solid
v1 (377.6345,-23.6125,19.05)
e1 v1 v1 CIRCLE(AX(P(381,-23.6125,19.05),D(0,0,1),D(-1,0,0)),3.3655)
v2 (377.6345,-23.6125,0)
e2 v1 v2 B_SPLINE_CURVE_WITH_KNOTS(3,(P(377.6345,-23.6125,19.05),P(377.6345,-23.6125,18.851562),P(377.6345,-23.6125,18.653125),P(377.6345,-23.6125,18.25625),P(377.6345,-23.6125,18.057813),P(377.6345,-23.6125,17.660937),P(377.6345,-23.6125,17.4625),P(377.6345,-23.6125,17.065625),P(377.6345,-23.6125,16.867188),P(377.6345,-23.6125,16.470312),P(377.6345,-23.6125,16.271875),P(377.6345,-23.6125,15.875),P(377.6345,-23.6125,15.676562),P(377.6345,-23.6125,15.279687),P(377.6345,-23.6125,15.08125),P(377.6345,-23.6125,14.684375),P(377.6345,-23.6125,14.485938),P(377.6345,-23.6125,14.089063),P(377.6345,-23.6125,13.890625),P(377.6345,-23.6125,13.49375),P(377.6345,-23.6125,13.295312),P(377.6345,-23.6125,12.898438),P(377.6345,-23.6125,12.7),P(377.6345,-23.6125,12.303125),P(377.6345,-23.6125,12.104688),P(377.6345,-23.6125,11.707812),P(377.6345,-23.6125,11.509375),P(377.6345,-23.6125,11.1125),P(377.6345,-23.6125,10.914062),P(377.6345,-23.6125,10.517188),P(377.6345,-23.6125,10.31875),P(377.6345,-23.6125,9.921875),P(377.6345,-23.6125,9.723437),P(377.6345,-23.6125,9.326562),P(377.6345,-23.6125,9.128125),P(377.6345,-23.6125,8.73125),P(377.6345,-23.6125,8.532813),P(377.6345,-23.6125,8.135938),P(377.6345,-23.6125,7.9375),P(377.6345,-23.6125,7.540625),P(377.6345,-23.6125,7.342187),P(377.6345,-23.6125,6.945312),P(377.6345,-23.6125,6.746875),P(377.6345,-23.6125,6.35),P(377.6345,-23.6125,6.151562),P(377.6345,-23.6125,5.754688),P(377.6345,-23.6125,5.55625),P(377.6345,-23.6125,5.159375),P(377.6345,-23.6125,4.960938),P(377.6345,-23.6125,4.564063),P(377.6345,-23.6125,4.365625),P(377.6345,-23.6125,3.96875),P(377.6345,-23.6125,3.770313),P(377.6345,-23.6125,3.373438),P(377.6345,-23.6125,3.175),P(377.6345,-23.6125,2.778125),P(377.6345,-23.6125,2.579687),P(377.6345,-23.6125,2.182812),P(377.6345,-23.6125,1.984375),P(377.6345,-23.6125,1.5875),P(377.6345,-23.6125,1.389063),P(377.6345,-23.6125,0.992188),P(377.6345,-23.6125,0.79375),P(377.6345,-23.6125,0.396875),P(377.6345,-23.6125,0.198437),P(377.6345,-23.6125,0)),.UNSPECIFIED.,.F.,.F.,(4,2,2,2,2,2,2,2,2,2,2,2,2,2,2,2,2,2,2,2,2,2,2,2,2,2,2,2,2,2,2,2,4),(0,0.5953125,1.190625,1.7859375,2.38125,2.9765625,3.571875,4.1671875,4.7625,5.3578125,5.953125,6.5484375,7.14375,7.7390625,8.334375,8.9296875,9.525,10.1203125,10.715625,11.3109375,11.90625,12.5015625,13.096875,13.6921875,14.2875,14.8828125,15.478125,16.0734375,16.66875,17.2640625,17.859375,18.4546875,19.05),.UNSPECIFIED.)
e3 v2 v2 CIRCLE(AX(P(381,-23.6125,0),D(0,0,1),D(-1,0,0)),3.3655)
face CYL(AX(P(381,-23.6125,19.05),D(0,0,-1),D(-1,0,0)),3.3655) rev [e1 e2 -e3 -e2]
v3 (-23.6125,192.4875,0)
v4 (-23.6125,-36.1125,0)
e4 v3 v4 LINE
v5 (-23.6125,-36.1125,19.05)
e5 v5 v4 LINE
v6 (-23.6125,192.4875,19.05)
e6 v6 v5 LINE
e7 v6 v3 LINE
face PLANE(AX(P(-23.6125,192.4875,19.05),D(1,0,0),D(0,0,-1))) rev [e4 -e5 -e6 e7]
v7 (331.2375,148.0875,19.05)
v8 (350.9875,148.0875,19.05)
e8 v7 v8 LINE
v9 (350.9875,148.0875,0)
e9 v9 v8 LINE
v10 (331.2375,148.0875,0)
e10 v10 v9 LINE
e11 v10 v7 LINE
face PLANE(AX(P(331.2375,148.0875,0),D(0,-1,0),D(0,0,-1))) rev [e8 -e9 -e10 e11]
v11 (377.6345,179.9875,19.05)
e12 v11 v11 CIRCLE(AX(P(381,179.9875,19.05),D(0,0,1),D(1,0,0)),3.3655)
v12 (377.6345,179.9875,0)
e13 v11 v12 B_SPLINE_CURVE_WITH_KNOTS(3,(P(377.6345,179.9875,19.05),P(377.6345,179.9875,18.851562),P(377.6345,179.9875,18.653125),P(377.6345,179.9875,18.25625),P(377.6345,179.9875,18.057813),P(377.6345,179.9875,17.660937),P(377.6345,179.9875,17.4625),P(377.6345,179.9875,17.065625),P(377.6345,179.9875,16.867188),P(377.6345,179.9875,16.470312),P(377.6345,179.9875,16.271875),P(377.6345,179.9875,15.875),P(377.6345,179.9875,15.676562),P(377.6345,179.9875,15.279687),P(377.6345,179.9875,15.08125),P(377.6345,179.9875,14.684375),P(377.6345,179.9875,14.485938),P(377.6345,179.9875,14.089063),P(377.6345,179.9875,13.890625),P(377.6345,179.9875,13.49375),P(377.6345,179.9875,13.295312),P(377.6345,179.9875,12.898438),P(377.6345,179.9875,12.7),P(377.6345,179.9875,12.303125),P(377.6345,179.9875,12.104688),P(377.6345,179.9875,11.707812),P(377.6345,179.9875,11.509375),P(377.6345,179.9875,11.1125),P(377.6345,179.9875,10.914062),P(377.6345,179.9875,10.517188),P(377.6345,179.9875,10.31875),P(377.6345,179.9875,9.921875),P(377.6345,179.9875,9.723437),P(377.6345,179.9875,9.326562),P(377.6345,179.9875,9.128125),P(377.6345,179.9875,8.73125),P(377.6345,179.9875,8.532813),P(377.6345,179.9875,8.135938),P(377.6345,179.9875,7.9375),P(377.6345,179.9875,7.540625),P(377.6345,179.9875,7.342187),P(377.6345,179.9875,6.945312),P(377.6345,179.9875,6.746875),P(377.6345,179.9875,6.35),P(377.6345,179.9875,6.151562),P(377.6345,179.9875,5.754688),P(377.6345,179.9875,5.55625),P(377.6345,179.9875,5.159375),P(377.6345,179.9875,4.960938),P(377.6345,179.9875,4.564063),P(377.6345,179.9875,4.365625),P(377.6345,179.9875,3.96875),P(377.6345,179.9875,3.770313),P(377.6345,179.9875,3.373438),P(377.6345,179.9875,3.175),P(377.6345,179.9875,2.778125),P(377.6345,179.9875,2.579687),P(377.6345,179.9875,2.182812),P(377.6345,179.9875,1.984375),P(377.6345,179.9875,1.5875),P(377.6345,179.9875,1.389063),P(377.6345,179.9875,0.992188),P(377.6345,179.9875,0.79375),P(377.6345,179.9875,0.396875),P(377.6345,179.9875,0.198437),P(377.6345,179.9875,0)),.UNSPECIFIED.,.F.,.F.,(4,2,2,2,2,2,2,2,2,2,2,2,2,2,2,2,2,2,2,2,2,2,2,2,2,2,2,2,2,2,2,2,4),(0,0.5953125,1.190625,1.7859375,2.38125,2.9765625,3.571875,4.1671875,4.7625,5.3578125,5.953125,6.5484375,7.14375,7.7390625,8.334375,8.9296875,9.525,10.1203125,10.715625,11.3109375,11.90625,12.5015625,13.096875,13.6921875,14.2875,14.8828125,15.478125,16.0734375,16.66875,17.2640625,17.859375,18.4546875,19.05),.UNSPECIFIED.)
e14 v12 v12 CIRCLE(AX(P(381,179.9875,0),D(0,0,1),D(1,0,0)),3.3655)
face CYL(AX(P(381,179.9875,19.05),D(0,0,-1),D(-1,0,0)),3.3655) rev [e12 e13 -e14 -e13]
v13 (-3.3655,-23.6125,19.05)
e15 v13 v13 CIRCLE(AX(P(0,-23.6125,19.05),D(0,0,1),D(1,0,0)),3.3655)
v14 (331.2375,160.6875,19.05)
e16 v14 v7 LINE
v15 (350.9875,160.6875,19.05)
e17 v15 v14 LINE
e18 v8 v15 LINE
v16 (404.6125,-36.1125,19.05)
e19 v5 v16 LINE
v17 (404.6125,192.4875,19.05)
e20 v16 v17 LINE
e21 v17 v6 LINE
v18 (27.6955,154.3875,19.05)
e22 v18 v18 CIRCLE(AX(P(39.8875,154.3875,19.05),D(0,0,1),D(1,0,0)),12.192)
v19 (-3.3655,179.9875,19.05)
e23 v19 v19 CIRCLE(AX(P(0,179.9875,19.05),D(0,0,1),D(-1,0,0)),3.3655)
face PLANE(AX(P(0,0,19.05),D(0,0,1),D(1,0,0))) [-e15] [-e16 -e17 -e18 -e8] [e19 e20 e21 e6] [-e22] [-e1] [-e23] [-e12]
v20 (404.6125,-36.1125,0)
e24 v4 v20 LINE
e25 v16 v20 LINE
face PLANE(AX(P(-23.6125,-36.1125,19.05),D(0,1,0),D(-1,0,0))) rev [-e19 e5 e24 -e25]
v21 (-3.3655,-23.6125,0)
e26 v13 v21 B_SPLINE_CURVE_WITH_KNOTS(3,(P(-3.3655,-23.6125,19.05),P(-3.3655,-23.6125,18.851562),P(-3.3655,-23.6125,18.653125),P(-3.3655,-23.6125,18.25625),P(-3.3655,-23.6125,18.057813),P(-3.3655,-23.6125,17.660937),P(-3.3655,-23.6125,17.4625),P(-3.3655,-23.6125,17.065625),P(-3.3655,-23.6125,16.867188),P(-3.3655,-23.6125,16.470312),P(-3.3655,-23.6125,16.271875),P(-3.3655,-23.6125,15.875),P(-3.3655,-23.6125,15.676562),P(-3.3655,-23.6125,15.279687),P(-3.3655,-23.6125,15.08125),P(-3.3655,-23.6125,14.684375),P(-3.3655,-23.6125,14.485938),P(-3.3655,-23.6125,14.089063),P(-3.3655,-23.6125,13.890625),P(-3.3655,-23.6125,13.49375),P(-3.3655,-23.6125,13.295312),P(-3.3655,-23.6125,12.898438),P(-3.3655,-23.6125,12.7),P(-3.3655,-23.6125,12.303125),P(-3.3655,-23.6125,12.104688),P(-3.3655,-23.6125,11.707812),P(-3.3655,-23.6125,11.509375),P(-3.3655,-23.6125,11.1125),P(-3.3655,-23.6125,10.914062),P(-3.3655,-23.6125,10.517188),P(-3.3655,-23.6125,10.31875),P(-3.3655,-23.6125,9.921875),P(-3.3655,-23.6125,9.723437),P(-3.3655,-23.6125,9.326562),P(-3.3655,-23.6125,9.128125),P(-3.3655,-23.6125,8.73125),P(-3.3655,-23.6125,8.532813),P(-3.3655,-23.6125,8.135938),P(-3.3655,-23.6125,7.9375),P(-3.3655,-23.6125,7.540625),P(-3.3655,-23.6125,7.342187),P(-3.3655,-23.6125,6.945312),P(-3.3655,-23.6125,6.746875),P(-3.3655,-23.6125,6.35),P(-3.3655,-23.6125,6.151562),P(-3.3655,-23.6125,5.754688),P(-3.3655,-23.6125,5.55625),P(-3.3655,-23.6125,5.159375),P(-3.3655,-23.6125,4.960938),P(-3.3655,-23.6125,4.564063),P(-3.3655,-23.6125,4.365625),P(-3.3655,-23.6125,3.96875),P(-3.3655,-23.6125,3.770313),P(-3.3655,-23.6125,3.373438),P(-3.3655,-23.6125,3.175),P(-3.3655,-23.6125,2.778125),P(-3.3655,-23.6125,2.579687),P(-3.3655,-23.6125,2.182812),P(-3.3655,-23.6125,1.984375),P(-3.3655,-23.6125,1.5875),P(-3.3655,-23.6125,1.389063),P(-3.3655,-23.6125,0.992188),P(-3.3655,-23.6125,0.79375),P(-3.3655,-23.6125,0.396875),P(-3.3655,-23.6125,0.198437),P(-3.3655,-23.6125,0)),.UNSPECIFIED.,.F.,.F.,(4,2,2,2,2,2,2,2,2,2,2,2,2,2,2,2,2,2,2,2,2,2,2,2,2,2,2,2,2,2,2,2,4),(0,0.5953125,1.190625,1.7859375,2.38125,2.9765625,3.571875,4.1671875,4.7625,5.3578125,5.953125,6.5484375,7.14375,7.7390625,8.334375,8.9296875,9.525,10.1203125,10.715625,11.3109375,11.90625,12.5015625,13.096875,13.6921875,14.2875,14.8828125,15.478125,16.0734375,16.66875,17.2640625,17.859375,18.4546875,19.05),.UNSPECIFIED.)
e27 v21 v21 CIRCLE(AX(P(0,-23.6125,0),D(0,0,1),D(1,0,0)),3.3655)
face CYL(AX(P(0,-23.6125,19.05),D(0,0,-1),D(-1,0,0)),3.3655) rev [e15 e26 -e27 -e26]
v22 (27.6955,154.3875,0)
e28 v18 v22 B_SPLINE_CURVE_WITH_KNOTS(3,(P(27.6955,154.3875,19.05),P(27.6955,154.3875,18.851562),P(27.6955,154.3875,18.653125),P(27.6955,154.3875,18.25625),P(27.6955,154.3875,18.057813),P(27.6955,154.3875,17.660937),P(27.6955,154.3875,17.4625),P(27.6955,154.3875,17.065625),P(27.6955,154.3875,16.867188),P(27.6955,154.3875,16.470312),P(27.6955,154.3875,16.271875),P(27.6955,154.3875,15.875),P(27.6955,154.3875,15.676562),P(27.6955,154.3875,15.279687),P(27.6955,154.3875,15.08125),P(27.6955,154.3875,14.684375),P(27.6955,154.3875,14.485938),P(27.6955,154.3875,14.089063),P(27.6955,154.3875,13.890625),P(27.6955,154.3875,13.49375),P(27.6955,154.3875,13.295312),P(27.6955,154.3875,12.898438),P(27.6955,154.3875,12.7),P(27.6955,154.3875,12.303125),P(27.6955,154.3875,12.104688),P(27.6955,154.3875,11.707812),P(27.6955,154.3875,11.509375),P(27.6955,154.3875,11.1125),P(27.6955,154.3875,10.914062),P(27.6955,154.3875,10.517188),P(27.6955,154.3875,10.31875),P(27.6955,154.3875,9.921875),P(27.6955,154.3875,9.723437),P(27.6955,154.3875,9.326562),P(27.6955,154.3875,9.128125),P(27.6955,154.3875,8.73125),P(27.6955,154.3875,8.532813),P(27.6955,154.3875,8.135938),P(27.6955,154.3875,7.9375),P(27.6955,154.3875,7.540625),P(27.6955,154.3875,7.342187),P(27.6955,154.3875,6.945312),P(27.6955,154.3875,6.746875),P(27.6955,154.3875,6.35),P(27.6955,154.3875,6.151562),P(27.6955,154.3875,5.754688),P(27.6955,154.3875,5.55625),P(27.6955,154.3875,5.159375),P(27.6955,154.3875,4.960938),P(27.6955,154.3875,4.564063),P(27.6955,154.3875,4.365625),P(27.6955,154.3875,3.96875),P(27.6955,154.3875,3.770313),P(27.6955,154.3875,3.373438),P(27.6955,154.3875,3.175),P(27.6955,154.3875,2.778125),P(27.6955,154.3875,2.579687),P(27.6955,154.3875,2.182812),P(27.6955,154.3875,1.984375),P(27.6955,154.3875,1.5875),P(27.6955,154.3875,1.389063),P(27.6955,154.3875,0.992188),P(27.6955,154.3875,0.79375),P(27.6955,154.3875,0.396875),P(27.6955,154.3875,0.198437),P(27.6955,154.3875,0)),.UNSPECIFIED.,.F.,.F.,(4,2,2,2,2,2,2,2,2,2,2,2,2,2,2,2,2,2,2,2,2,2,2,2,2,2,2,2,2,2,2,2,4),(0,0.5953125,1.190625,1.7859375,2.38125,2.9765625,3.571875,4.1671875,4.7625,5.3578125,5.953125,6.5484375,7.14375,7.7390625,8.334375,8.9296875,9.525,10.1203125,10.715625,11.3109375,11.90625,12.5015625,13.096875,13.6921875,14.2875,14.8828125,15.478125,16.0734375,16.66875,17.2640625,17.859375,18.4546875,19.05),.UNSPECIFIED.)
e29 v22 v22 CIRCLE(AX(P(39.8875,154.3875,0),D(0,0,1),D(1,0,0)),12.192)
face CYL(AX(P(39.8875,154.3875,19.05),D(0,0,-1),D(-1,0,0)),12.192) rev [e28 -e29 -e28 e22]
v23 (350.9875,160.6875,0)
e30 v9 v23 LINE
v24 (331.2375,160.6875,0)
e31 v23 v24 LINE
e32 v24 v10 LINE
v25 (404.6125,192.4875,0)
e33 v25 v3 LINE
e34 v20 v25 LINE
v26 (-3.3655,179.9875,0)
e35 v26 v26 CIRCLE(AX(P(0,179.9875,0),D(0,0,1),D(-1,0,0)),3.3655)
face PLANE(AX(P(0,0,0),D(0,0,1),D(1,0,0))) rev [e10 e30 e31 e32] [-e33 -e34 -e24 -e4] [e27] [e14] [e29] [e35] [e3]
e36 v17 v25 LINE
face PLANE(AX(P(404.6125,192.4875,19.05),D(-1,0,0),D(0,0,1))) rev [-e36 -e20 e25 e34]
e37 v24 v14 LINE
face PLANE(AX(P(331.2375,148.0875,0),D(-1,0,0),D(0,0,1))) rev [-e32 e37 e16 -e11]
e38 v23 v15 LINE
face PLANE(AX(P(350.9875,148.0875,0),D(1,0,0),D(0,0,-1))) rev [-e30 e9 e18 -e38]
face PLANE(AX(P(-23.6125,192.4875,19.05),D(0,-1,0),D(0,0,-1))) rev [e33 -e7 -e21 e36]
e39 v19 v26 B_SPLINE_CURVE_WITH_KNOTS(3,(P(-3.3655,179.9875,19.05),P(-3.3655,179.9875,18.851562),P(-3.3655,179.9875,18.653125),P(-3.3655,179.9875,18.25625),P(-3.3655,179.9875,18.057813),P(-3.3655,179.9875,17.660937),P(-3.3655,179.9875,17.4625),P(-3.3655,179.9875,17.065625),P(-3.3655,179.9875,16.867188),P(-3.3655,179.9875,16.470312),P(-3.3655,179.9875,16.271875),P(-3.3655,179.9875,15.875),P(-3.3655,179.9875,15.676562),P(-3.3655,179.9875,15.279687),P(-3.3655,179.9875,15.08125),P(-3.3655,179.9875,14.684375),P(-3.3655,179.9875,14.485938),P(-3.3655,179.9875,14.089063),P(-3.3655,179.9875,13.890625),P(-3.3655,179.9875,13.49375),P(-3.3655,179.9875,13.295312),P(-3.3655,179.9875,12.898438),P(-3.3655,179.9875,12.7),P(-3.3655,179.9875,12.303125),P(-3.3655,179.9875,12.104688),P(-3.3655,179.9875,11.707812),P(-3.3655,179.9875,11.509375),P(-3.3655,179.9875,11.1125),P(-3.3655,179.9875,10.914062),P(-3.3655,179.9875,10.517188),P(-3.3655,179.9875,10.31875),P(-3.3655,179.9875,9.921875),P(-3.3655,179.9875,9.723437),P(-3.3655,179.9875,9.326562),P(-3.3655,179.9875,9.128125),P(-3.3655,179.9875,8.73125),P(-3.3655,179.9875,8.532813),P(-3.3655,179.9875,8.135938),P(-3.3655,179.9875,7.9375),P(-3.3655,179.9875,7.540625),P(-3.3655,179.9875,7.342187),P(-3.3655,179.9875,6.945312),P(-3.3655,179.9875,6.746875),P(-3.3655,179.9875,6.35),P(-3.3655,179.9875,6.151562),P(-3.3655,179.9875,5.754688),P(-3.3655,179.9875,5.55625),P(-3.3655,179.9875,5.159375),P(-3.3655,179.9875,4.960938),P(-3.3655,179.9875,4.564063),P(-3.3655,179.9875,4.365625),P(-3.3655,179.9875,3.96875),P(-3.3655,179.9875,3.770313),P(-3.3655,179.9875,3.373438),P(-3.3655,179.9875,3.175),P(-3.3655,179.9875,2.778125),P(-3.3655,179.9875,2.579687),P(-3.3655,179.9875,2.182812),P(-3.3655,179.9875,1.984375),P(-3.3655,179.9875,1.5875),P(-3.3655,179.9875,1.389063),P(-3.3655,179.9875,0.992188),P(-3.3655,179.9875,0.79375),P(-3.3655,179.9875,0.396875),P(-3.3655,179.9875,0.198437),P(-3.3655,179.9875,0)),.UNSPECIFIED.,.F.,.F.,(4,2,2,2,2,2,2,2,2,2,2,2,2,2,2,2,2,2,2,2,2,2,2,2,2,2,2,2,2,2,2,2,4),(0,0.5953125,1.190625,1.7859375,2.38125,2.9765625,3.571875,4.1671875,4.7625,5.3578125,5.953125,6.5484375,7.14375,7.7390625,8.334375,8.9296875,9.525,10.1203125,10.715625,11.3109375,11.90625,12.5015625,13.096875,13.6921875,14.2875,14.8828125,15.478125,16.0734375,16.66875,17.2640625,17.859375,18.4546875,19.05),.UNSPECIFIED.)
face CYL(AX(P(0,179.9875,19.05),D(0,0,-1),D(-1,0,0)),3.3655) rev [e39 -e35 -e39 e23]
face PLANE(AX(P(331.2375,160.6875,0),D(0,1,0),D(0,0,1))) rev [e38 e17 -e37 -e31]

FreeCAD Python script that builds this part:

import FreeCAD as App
import Part
import Sketcher
Q = App.Units.Quantity


def add_polygon(sketch, points):
    """Adds a closed chain of lines whose ends are joined by coincident constraints."""
    first, n = sketch.GeometryCount, len(points)
    for a, b in zip(points, points[1:] + points[:1]):
        sketch.addGeometry(Part.LineSegment(App.Vector(*a, 0), App.Vector(*b, 0)), False)
    for i in range(n):
        sketch.addConstraint(Sketcher.Constraint("Coincident", first + i, 2, first + (i + 1) % n, 1))

doc = App.newDocument("Part")
body = doc.addObject("PartDesign::Body", "Body")

sketch1 = doc.addObject("Sketcher::SketchObject", "Sketch")
body.addObject(sketch1)
sketch1.AttachmentSupport = (doc.XY_Plane, [""])
sketch1.MapMode = "FlatFace"
add_polygon(sketch1, [(-23.6125, 192.4875), (-23.6125, -36.1125), (404.6125, -36.1125), (404.6125, 192.4875)])
sketch1.addGeometry(Part.Circle(App.Vector(0, -23.6125, 0), App.Vector(0, 0, 1), 3.3655), False)
sketch1.addGeometry(Part.Circle(App.Vector(381, -23.6125, 0), App.Vector(0, 0, 1), 3.3655), False)
sketch1.addGeometry(Part.Circle(App.Vector(39.8875, 154.3875, 0), App.Vector(0, 0, 1), 12.192), False)
sketch1.addGeometry(Part.Circle(App.Vector(0, 179.9875, 0), App.Vector(0, 0, 1), 3.3655), False)
sketch1.addGeometry(Part.Circle(App.Vector(381, 179.9875, 0), App.Vector(0, 0, 1), 3.3655), False)
sketch1.addConstraint([
    Sketcher.Constraint("Vertical", 0),
    Sketcher.Constraint("Horizontal", 1),
    Sketcher.Constraint("Vertical", 2),
    Sketcher.Constraint("Horizontal", 3),
    Sketcher.Constraint("Equal", 4, 5),
    Sketcher.Constraint("Equal", 5, 7),
    Sketcher.Constraint("Equal", 7, 8),
    Sketcher.Constraint("PointOnObject", 4, 3, -2),
    Sketcher.Constraint("PointOnObject", 7, 3, -2),
    Sketcher.Constraint("Horizontal", 4, 3, 5, 3),
    Sketcher.Constraint("Horizontal", 7, 3, 8, 3),
    Sketcher.Constraint("Vertical", 5, 3, 8, 3),
    Sketcher.Constraint("Diameter", 6, Q("0.96 in")),
    Sketcher.Constraint("DistanceY", 0, 2, 0, 1, Q("9 in")),
    Sketcher.Constraint("Diameter", 4, Q("0.265 in")),
    Sketcher.Constraint("DistanceX", -1, 1, 5, 3, Q("15 in")),
    Sketcher.Constraint("DistanceX", 0, 2, 6, 3, Q("2.5 in")),
    Sketcher.Constraint("DistanceY", 0, 2, 6, 3, Q("7.5 in")),
    Sketcher.Constraint("DistanceX", 1, 1, 1, 2, Q("428.225 mm")),
    Sketcher.Constraint("DistanceY", 4, 3, -1, 1, Q("23.6125 mm")),
    Sketcher.Constraint("DistanceX", -1, 1, 6, 3, Q("39.8875 mm")),
    Sketcher.Constraint("DistanceY", -1, 1, 6, 3, Q("154.3875 mm")),
    Sketcher.Constraint("DistanceY", -1, 1, 7, 3, Q("179.9875 mm")),
])
pad1 = doc.addObject("PartDesign::Pad", "Pad")
body.addObject(pad1)
pad1.Profile = sketch1
pad1.Length = Q("0.75 in")

sketch2 = doc.addObject("Sketcher::SketchObject", "Sketch001")
body.addObject(sketch2)
sketch2.AttachmentSupport = (doc.XY_Plane, [""])
sketch2.MapMode = "FlatFace"
sketch2.AttachmentOffset = App.Placement(App.Vector(0, 0, 0.75 * 25.4), App.Rotation())
add_polygon(sketch2, [(331.2375, 160.6875), (331.2375, 148.0875), (350.9875, 148.0875), (350.9875, 160.6875)])
sketch2.addConstraint([
    Sketcher.Constraint("Vertical", 0),
    Sketcher.Constraint("Horizontal", 1),
    Sketcher.Constraint("Vertical", 2),
    Sketcher.Constraint("Horizontal", 3),
    Sketcher.Constraint("DistanceX", 1, 1, 1, 2, Q("19.75 mm")),
    Sketcher.Constraint("DistanceY", 0, 2, 0, 1, Q("12.6 mm")),
    Sketcher.Constraint("DistanceX", -1, 1, 0, 2, Q("331.2375 mm")),
    Sketcher.Constraint("DistanceY", -1, 1, 0, 2, Q("148.0875 mm")),
])
pocket1 = doc.addObject("PartDesign::Pocket", "Pocket")
body.addObject(pocket1)
pocket1.Profile = sketch2
pocket1.Type = "ThroughAll"

doc.recompute()
